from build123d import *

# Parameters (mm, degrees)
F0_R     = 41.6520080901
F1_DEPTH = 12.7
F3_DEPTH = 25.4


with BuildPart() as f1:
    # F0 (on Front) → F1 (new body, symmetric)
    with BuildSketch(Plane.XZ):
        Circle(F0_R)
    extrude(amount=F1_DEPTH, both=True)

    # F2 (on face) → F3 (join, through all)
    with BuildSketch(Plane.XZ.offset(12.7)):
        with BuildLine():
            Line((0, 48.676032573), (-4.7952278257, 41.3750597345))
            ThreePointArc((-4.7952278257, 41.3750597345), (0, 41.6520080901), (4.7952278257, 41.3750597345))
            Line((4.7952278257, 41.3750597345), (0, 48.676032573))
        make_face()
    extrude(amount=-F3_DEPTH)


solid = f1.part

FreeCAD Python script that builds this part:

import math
import FreeCAD as App
import Part
import Sketcher
from FreeCAD import Vector
Q = App.Units.Quantity

doc = App.newDocument("Part")
params = doc.addObject("Spreadsheet::Sheet", "Params")
for row, (alias, value) in enumerate([
    ("pad1_length", "1 in"),
    ("pad2_length", "1 in"),
], start=1):
    params.set(f"A{row}", alias)
    params.set(f"B{row}", "=" + value)
    params.setAlias(f"B{row}", alias)

body = doc.addObject("PartDesign::Body", "Body")

# Sketch on XZ plane
sketch1 = doc.addObject("Sketcher::SketchObject", "Sketch")
body.addObject(sketch1)
sketch1.AttachmentSupport = (doc.XZ_Plane, [""])
sketch1.MapMode = "FlatFace"
sketch1.addGeometry(Part.Circle(Vector(0, 0, 0), Vector(0, 0, 1), 41.652008), False)
sketch1.addConstraint([
    Sketcher.Constraint("Coincident", 0, 3, -1, 1),
    Sketcher.Constraint("Diameter", 0, Q("83.304016 mm")),
])
pad1 = doc.addObject("PartDesign::Pad", "Pad")
body.addObject(pad1)
pad1.Profile = sketch1
pad1.setExpression("Length", "Params.pad1_length")
pad1.Midplane = True

# Sketch on XZ plane
sketch2 = doc.addObject("Sketcher::SketchObject", "Sketch001")
body.addObject(sketch2)
sketch2.AttachmentSupport = (doc.XZ_Plane, [""])
sketch2.MapMode = "FlatFace"
sketch2.AttachmentOffset = App.Placement(Vector(0, 0, 0.5 * 25.4), App.Rotation())
sketch2.addGeometry([
    Part.LineSegment(Vector(0, 48.676033, 0), Vector(-4.795228, 41.37506, 0)),
    Part.ArcOfCircle(Part.Circle(Vector(0, 0, 0), Vector(0, 0, 1), 41.652008), math.radians(83.389109), math.radians(96.610891)),
    Part.LineSegment(Vector(4.795228, 41.37506, 0), Vector(0, 48.676033, 0)),
], False)
sketch2.addConstraint([
    Sketcher.Constraint("Coincident", 0, 2, 1, 2),
    Sketcher.Constraint("Coincident", 1, 1, 2, 1),
    Sketcher.Constraint("Coincident", 2, 2, 0, 1),
    Sketcher.Constraint("Coincident", 1, 3, -1, 1),
    Sketcher.Constraint("PointOnObject", 2, 2, -2),
    Sketcher.Constraint("Horizontal", 0, 2, 1, 1),
    Sketcher.Constraint("Radius", 1, Q("41.652008 mm")),
    Sketcher.Constraint("DistanceY", -1, 1, 0, 2, Q("41.37506 mm")),
    Sketcher.Constraint("Distance", 0, Q("8.734896 mm")),
])
pad2 = doc.addObject("PartDesign::Pad", "Pad001")
body.addObject(pad2)
pad2.Profile = sketch2
pad2.setExpression("Length", "Params.pad2_length")
pad2.Reversed = True

doc.recompute()
